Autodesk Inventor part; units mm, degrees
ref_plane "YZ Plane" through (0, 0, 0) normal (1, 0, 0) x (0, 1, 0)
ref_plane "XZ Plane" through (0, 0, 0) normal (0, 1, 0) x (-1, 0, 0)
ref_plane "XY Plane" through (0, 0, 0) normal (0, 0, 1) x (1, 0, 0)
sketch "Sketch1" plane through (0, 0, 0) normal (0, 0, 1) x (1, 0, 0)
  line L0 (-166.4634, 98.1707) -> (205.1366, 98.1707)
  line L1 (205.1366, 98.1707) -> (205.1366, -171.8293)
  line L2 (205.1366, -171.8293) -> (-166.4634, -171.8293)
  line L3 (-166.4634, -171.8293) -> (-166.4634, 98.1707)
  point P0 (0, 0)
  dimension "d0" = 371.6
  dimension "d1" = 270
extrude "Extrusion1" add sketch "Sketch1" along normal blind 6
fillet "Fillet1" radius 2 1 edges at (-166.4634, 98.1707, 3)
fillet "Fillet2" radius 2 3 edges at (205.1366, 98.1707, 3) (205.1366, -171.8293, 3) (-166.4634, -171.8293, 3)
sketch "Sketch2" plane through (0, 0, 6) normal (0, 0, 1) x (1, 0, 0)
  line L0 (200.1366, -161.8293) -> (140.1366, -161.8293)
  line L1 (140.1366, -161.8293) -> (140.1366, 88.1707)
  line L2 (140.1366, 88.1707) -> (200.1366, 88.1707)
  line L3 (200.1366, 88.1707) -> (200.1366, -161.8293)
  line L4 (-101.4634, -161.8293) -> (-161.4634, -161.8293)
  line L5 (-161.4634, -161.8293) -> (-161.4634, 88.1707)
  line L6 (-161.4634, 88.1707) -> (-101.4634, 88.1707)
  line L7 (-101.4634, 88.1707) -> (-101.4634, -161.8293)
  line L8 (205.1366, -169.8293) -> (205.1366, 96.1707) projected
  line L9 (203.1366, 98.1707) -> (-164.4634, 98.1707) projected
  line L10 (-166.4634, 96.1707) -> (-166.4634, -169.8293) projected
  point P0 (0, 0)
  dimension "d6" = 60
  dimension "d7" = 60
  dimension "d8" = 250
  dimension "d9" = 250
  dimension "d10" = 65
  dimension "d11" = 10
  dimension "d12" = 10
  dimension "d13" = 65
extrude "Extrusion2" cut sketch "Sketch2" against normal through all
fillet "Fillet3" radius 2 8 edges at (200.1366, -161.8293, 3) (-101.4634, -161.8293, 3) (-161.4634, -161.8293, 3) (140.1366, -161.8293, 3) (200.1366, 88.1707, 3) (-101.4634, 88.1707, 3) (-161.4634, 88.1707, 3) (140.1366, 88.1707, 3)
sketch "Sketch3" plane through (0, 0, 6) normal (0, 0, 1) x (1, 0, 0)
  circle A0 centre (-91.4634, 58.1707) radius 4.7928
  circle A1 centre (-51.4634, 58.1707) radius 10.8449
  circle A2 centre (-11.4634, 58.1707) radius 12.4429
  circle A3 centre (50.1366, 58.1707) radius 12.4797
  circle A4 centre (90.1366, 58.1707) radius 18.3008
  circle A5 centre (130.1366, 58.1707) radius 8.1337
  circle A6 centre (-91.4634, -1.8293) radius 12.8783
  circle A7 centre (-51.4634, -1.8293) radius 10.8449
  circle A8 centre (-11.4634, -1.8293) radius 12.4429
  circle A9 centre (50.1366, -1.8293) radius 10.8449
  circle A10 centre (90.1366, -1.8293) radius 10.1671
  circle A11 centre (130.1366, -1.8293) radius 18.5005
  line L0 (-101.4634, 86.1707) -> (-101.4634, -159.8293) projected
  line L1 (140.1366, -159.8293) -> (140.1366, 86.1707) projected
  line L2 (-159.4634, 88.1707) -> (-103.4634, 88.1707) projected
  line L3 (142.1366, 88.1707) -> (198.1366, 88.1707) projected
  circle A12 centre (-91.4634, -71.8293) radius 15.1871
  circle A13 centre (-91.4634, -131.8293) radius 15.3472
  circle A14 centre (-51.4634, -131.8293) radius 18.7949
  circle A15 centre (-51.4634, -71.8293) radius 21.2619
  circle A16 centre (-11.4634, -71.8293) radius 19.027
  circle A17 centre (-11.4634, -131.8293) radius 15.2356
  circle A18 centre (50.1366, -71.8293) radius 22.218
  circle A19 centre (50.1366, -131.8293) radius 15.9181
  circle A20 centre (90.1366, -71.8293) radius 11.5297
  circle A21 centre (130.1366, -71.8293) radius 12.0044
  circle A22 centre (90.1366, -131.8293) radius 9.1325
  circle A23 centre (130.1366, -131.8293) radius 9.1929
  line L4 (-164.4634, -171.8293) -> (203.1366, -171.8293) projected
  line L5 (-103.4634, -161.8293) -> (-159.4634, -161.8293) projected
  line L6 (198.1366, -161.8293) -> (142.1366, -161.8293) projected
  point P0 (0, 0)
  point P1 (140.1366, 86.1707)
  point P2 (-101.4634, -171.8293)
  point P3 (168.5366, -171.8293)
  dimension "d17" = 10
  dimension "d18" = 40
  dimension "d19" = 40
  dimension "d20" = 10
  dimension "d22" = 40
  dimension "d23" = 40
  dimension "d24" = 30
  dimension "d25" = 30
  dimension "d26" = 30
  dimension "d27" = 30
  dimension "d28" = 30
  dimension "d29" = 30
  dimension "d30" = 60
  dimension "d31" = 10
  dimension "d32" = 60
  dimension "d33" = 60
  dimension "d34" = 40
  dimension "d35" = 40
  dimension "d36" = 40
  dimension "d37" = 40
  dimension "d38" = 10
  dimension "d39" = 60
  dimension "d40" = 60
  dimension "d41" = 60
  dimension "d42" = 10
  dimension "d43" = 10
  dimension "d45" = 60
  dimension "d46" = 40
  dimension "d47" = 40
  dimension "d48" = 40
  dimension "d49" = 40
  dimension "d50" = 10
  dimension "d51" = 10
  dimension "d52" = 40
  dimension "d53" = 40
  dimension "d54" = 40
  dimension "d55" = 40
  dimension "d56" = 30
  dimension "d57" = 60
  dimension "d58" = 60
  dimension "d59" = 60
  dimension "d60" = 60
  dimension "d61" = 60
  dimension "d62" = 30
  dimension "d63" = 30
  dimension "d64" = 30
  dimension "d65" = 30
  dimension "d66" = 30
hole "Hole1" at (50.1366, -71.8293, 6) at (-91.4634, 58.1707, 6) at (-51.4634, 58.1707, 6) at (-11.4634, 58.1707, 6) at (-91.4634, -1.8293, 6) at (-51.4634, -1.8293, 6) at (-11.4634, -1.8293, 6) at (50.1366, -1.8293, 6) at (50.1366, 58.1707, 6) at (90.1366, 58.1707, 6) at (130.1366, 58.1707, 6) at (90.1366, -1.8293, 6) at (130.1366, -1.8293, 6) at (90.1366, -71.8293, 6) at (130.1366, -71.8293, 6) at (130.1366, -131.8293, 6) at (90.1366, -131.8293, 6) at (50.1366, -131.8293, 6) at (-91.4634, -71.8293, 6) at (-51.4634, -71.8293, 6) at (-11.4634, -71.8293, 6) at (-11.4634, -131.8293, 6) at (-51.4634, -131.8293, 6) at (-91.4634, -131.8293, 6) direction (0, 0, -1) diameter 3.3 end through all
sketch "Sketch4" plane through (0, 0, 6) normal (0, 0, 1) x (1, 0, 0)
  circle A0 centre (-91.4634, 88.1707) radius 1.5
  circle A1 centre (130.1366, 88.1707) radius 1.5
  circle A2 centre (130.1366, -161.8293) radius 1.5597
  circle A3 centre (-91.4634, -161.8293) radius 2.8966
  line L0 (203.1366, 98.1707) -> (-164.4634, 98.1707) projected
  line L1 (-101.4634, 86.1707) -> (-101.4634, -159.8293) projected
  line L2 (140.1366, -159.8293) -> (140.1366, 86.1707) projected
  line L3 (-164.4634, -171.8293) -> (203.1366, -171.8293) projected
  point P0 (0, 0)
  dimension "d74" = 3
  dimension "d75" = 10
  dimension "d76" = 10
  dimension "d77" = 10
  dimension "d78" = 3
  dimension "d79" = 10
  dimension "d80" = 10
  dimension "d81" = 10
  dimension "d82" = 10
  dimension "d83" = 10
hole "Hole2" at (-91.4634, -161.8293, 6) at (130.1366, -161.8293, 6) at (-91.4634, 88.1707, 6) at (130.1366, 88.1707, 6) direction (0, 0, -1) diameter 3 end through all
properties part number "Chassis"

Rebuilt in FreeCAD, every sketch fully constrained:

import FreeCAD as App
import Part
import Sketcher

V = App.Vector


def edges_at(feature, points):
    """Names of the edges that pass closest to the given points."""
    edges = feature.Shape.Edges
    near = lambda p: min(range(len(edges)), key=lambda i: edges[i].distToShape(Part.Vertex(*p))[0])
    return sorted({f"Edge{near(p) + 1}" for p in points})

doc = App.newDocument("Part")
body = doc.addObject("PartDesign::Body", "Body")

# Sketch on XY plane
sketch1 = body.newObject("Sketcher::SketchObject", "Sketch")
sketch1.AttachmentSupport = (doc.getObject("XY_Plane"), [""])
sketch1.MapMode = "FlatFace"
sketch1.addGeometry(Part.LineSegment(V(205, 98, 0), V(-166, 98, 0)), False)
sketch1.addGeometry(Part.LineSegment(V(-166, 98, 0), V(-166, -172, 0)), False)
sketch1.addGeometry(Part.LineSegment(V(-166, -172, 0), V(205, -172, 0)), False)
sketch1.addGeometry(Part.LineSegment(V(205, -172, 0), V(205, 98, 0)), False)
sketch1.addConstraint(Sketcher.Constraint("Coincident", 0, 2, 1, 1))
sketch1.addConstraint(Sketcher.Constraint("Coincident", 1, 2, 2, 1))
sketch1.addConstraint(Sketcher.Constraint("Coincident", 2, 2, 3, 1))
sketch1.addConstraint(Sketcher.Constraint("Coincident", 3, 2, 0, 1))
sketch1.addConstraint(Sketcher.Constraint("Horizontal", 0))
sketch1.addConstraint(Sketcher.Constraint("Vertical", 1))
sketch1.addConstraint(Sketcher.Constraint("Horizontal", 2))
sketch1.addConstraint(Sketcher.Constraint("Vertical", 3))
sketch1.addConstraint(Sketcher.Constraint("DistanceY", 1, 2, 1, 1, 270.0))
sketch1.addConstraint(Sketcher.Constraint("DistanceX", 0, 2, 0, 1, 371.6))
sketch1.addConstraint(Sketcher.Constraint("DistanceX", 0, 2, -1, 1, 166.4634))
sketch1.addConstraint(Sketcher.Constraint("DistanceY", -1, 1, 0, 2, 98.1707))
pad1 = body.newObject("PartDesign::Pad", "Pad")
pad1.Profile = sketch1
pad1.Length = 6
doc.recompute()

fillet = body.newObject("PartDesign::Fillet", "Fillet")
fillet.Base = (pad1, edges_at(pad1, [(-166.463, 98.171, 3)]))
fillet.Radius = 2
doc.recompute()

fillet2 = body.newObject("PartDesign::Fillet", "Fillet001")
fillet2.Base = (fillet, edges_at(fillet, [(205.137, 98.171, 3), (205.137, -171.829, 3), (-166.463, -171.829, 3)]))
fillet2.Radius = 2

# Sketch on XY plane
sketch2 = body.newObject("Sketcher::SketchObject", "Sketch001")
sketch2.AttachmentSupport = (doc.getObject("XY_Plane"), [""])
sketch2.MapMode = "FlatFace"
sketch2.AttachmentOffset = App.Placement(V(0, 0, 6), App.Rotation())
sketch2.addGeometry(Part.LineSegment(V(140, -162, 0), V(200, -162, 0)), False)
sketch2.addGeometry(Part.LineSegment(V(200, -162, 0), V(200, 88, 0)), False)
sketch2.addGeometry(Part.LineSegment(V(200, 88, 0), V(140, 88, 0)), False)
sketch2.addGeometry(Part.LineSegment(V(140, 88, 0), V(140, -162, 0)), False)
sketch2.addGeometry(Part.LineSegment(V(-161, -162, 0), V(-101, -162, 0)), False)
sketch2.addGeometry(Part.LineSegment(V(-101, -162, 0), V(-101, 88, 0)), False)
sketch2.addGeometry(Part.LineSegment(V(-101, 88, 0), V(-161, 88, 0)), False)
sketch2.addGeometry(Part.LineSegment(V(-161, 88, 0), V(-161, -162, 0)), False)
sketch2.addConstraint(Sketcher.Constraint("Coincident", 0, 2, 1, 1))
sketch2.addConstraint(Sketcher.Constraint("Coincident", 1, 2, 2, 1))
sketch2.addConstraint(Sketcher.Constraint("Coincident", 2, 2, 3, 1))
sketch2.addConstraint(Sketcher.Constraint("Coincident", 3, 2, 0, 1))
sketch2.addConstraint(Sketcher.Constraint("Coincident", 4, 2, 5, 1))
sketch2.addConstraint(Sketcher.Constraint("Coincident", 5, 2, 6, 1))
sketch2.addConstraint(Sketcher.Constraint("Coincident", 6, 2, 7, 1))
sketch2.addConstraint(Sketcher.Constraint("Coincident", 7, 2, 4, 1))
sketch2.addConstraint(Sketcher.Constraint("Horizontal", 0))
sketch2.addConstraint(Sketcher.Constraint("Vertical", 1))
sketch2.addConstraint(Sketcher.Constraint("Horizontal", 2))
sketch2.addConstraint(Sketcher.Constraint("Vertical", 3))
sketch2.addConstraint(Sketcher.Constraint("Horizontal", 4))
sketch2.addConstraint(Sketcher.Constraint("Vertical", 5))
sketch2.addConstraint(Sketcher.Constraint("Horizontal", 6))
sketch2.addConstraint(Sketcher.Constraint("Vertical", 7))
sketch2.addConstraint(Sketcher.Constraint("Horizontal", 3, 2, 4, 2))
sketch2.addConstraint(Sketcher.Constraint("Horizontal", 2, 2, 5, 2))
sketch2.addConstraint(Sketcher.Constraint("Equal", 2, 4))
sketch2.addConstraint(Sketcher.Constraint("DistanceX", 0, 1, 0, 2, 60.0))
sketch2.addConstraint(Sketcher.Constraint("DistanceY", 1, 1, 1, 2, 250.0))
sketch2.addConstraint(Sketcher.Constraint("DistanceX", 4, 2, 3, 2, 241.6))
sketch2.addConstraint(Sketcher.Constraint("DistanceX", -1, 1, 0, 2, 200.1366))
sketch2.addConstraint(Sketcher.Constraint("DistanceY", 0, 2, -1, 1, 161.8293))
pocket1 = body.newObject("PartDesign::Pocket", "Pocket")
pocket1.Profile = sketch2
pocket1.Type = "ThroughAll"
doc.recompute()

fillet3 = body.newObject("PartDesign::Fillet", "Fillet002")
fillet3.Base = (pocket1, edges_at(pocket1, [
    (200.137, -161.829, 3),
    (-101.463, -161.829, 3),
    (-161.463, -161.829, 3),
    (140.137, -161.829, 3),
    (200.137, 88.171, 3),
    (-101.463, 88.171, 3),
    (-161.463, 88.171, 3),
    (140.137, 88.171, 3),
]))
fillet3.Radius = 2

# Sketch on XY plane
sketch3 = body.newObject("Sketcher::SketchObject", "Sketch002")
sketch3.AttachmentSupport = (doc.getObject("XY_Plane"), [""])
sketch3.MapMode = "FlatFace"
sketch3.AttachmentOffset = App.Placement(V(0, 0, 6), App.Rotation())
sketch3.addGeometry(Part.Circle(V(50.1, -71.8, 0), V(0, 0, 1), 1.6), False)
sketch3.addGeometry(Part.Circle(V(-91.5, 58.2, 0), V(0, 0, 1), 1.6), False)
sketch3.addGeometry(Part.Circle(V(-51.5, 58.2, 0), V(0, 0, 1), 1.6), False)
sketch3.addGeometry(Part.Circle(V(-11.5, 58.2, 0), V(0, 0, 1), 1.6), False)
sketch3.addGeometry(Part.Circle(V(-91.5, -1.8, 0), V(0, 0, 1), 1.6), False)
sketch3.addGeometry(Part.Circle(V(-51.5, -1.8, 0), V(0, 0, 1), 1.6), False)
sketch3.addGeometry(Part.Circle(V(-11.5, -1.8, 0), V(0, 0, 1), 1.6), False)
sketch3.addGeometry(Part.Circle(V(50.1, -1.8, 0), V(0, 0, 1), 1.6), False)
sketch3.addGeometry(Part.Circle(V(50.1, 58.2, 0), V(0, 0, 1), 1.6), False)
sketch3.addGeometry(Part.Circle(V(90.1, 58.2, 0), V(0, 0, 1), 1.6), False)
sketch3.addGeometry(Part.Circle(V(130.1, 58.2, 0), V(0, 0, 1), 1.6), False)
sketch3.addGeometry(Part.Circle(V(90.1, -1.8, 0), V(0, 0, 1), 1.6), False)
sketch3.addGeometry(Part.Circle(V(130.1, -1.8, 0), V(0, 0, 1), 1.6), False)
sketch3.addGeometry(Part.Circle(V(90.1, -71.8, 0), V(0, 0, 1), 1.6), False)
sketch3.addGeometry(Part.Circle(V(130.1, -71.8, 0), V(0, 0, 1), 1.6), False)
sketch3.addGeometry(Part.Circle(V(130.1, -131.8, 0), V(0, 0, 1), 1.6), False)
sketch3.addGeometry(Part.Circle(V(90.1, -131.8, 0), V(0, 0, 1), 1.6), False)
sketch3.addGeometry(Part.Circle(V(50.1, -131.8, 0), V(0, 0, 1), 1.6), False)
sketch3.addGeometry(Part.Circle(V(-91.5, -71.8, 0), V(0, 0, 1), 1.6), False)
sketch3.addGeometry(Part.Circle(V(-51.5, -71.8, 0), V(0, 0, 1), 1.6), False)
sketch3.addGeometry(Part.Circle(V(-11.5, -71.8, 0), V(0, 0, 1), 1.6), False)
sketch3.addGeometry(Part.Circle(V(-11.5, -131.8, 0), V(0, 0, 1), 1.6), False)
sketch3.addGeometry(Part.Circle(V(-51.5, -131.8, 0), V(0, 0, 1), 1.6), False)
sketch3.addGeometry(Part.Circle(V(-91.5, -131.8, 0), V(0, 0, 1), 1.6), False)
sketch3.addConstraint(Sketcher.Constraint("Equal", 0, 1))
sketch3.addConstraint(Sketcher.Constraint("Equal", 1, 2))
sketch3.addConstraint(Sketcher.Constraint("Equal", 2, 3))
sketch3.addConstraint(Sketcher.Constraint("Equal", 3, 4))
sketch3.addConstraint(Sketcher.Constraint("Equal", 4, 5))
sketch3.addConstraint(Sketcher.Constraint("Equal", 5, 6))
sketch3.addConstraint(Sketcher.Constraint("Equal", 6, 7))
sketch3.addConstraint(Sketcher.Constraint("Equal", 7, 8))
sketch3.addConstraint(Sketcher.Constraint("Equal", 8, 9))
sketch3.addConstraint(Sketcher.Constraint("Equal", 9, 10))
sketch3.addConstraint(Sketcher.Constraint("Equal", 10, 11))
sketch3.addConstraint(Sketcher.Constraint("Equal", 11, 12))
sketch3.addConstraint(Sketcher.Constraint("Equal", 12, 13))
sketch3.addConstraint(Sketcher.Constraint("Equal", 13, 14))
sketch3.addConstraint(Sketcher.Constraint("Equal", 14, 15))
sketch3.addConstraint(Sketcher.Constraint("Equal", 15, 16))
sketch3.addConstraint(Sketcher.Constraint("Equal", 16, 17))
sketch3.addConstraint(Sketcher.Constraint("Equal", 17, 18))
sketch3.addConstraint(Sketcher.Constraint("Equal", 18, 19))
sketch3.addConstraint(Sketcher.Constraint("Equal", 19, 20))
sketch3.addConstraint(Sketcher.Constraint("Equal", 20, 21))
sketch3.addConstraint(Sketcher.Constraint("Equal", 21, 22))
sketch3.addConstraint(Sketcher.Constraint("Equal", 22, 23))
sketch3.addConstraint(Sketcher.Constraint("Horizontal", 1, 3, 2, 3))
sketch3.addConstraint(Sketcher.Constraint("Horizontal", 2, 3, 3, 3))
sketch3.addConstraint(Sketcher.Constraint("Horizontal", 4, 3, 5, 3))
sketch3.addConstraint(Sketcher.Constraint("Horizontal", 5, 3, 6, 3))
sketch3.addConstraint(Sketcher.Constraint("Horizontal", 6, 3, 7, 3))
sketch3.addConstraint(Sketcher.Constraint("Horizontal", 3, 3, 8, 3))
sketch3.addConstraint(Sketcher.Constraint("Horizontal", 8, 3, 9, 3))
sketch3.addConstraint(Sketcher.Constraint("Horizontal", 9, 3, 10, 3))
sketch3.addConstraint(Sketcher.Constraint("Horizontal", 7, 3, 11, 3))
sketch3.addConstraint(Sketcher.Constraint("Horizontal", 11, 3, 12, 3))
sketch3.addConstraint(Sketcher.Constraint("Horizontal", 0, 3, 13, 3))
sketch3.addConstraint(Sketcher.Constraint("Horizontal", 13, 3, 14, 3))
sketch3.addConstraint(Sketcher.Constraint("Horizontal", 15, 3, 16, 3))
sketch3.addConstraint(Sketcher.Constraint("Horizontal", 16, 3, 17, 3))
sketch3.addConstraint(Sketcher.Constraint("Horizontal", 14, 3, 18, 3))
sketch3.addConstraint(Sketcher.Constraint("Horizontal", 18, 3, 19, 3))
sketch3.addConstraint(Sketcher.Constraint("Horizontal", 19, 3, 20, 3))
sketch3.addConstraint(Sketcher.Constraint("Horizontal", 17, 3, 21, 3))
sketch3.addConstraint(Sketcher.Constraint("Horizontal", 21, 3, 22, 3))
sketch3.addConstraint(Sketcher.Constraint("Horizontal", 22, 3, 23, 3))
sketch3.addConstraint(Sketcher.Constraint("Vertical", 1, 3, 4, 3))
sketch3.addConstraint(Sketcher.Constraint("Vertical", 2, 3, 5, 3))
sketch3.addConstraint(Sketcher.Constraint("Vertical", 3, 3, 6, 3))
sketch3.addConstraint(Sketcher.Constraint("Vertical", 0, 3, 7, 3))
sketch3.addConstraint(Sketcher.Constraint("Vertical", 7, 3, 8, 3))
sketch3.addConstraint(Sketcher.Constraint("Vertical", 9, 3, 11, 3))
sketch3.addConstraint(Sketcher.Constraint("Vertical", 10, 3, 12, 3))
sketch3.addConstraint(Sketcher.Constraint("Vertical", 11, 3, 13, 3))
sketch3.addConstraint(Sketcher.Constraint("Vertical", 12, 3, 14, 3))
sketch3.addConstraint(Sketcher.Constraint("Vertical", 14, 3, 15, 3))
sketch3.addConstraint(Sketcher.Constraint("Vertical", 13, 3, 16, 3))
sketch3.addConstraint(Sketcher.Constraint("Vertical", 8, 3, 17, 3))
sketch3.addConstraint(Sketcher.Constraint("Vertical", 4, 3, 18, 3))
sketch3.addConstraint(Sketcher.Constraint("Vertical", 5, 3, 19, 3))
sketch3.addConstraint(Sketcher.Constraint("Vertical", 6, 3, 20, 3))
sketch3.addConstraint(Sketcher.Constraint("Vertical", 20, 3, 21, 3))
sketch3.addConstraint(Sketcher.Constraint("Vertical", 19, 3, 22, 3))
sketch3.addConstraint(Sketcher.Constraint("Vertical", 18, 3, 23, 3))
sketch3.addConstraint(Sketcher.Constraint("Diameter", 0, 3.3))
sketch3.addConstraint(Sketcher.Constraint("DistanceY", 0, 3, 1, 3, 130.0))
sketch3.addConstraint(Sketcher.Constraint("DistanceX", 1, 3, 2, 3, 40.0))
sketch3.addConstraint(Sketcher.Constraint("DistanceX", 2, 3, 3, 3, 40.0))
sketch3.addConstraint(Sketcher.Constraint("DistanceY", 4, 3, 1, 3, 60.0))
sketch3.addConstraint(Sketcher.Constraint("DistanceX", 8, 3, 9, 3, 40.0))
sketch3.addConstraint(Sketcher.Constraint("DistanceX", 9, 3, 10, 3, 40.0))
sketch3.addConstraint(Sketcher.Constraint("DistanceY", 15, 3, 14, 3, 60.0))
sketch3.addConstraint(Sketcher.Constraint("DistanceX", 1, 3, 0, 3, 141.6))
sketch3.addConstraint(Sketcher.Constraint("DistanceX", -1, 1, 0, 3, 50.1366))
sketch3.addConstraint(Sketcher.Constraint("DistanceY", 0, 3, -1, 1, 71.8293))
doc.recompute()
hole = body.newObject("PartDesign::Hole", "Hole")
hole.Profile = sketch3
hole.ThreadType = "None"
hole.Diameter = 3.3
hole.DepthType = "ThroughAll"

# Sketch on XY plane
sketch4 = body.newObject("Sketcher::SketchObject", "Sketch003")
sketch4.AttachmentSupport = (doc.getObject("XY_Plane"), [""])
sketch4.MapMode = "FlatFace"
sketch4.AttachmentOffset = App.Placement(V(0, 0, 6), App.Rotation())
sketch4.addGeometry(Part.Circle(V(-91.5, -161.8, 0), V(0, 0, 1), 1.5), False)
sketch4.addGeometry(Part.Circle(V(130.1, -161.8, 0), V(0, 0, 1), 1.5), False)
sketch4.addGeometry(Part.Circle(V(-91.5, 88.2, 0), V(0, 0, 1), 1.5), False)
sketch4.addGeometry(Part.Circle(V(130.1, 88.2, 0), V(0, 0, 1), 1.5), False)
sketch4.addConstraint(Sketcher.Constraint("Equal", 0, 1))
sketch4.addConstraint(Sketcher.Constraint("Equal", 1, 2))
sketch4.addConstraint(Sketcher.Constraint("Equal", 2, 3))
sketch4.addConstraint(Sketcher.Constraint("Horizontal", 0, 3, 1, 3))
sketch4.addConstraint(Sketcher.Constraint("Horizontal", 2, 3, 3, 3))
sketch4.addConstraint(Sketcher.Constraint("Vertical", 0, 3, 2, 3))
sketch4.addConstraint(Sketcher.Constraint("Vertical", 1, 3, 3, 3))
sketch4.addConstraint(Sketcher.Constraint("Diameter", 0, 3.0))
sketch4.addConstraint(Sketcher.Constraint("DistanceY", 0, 3, 2, 3, 250.0))
sketch4.addConstraint(Sketcher.Constraint("DistanceX", 0, 3, 1, 3, 221.6))
sketch4.addConstraint(Sketcher.Constraint("DistanceX", 0, 3, -1, 1, 91.4634))
sketch4.addConstraint(Sketcher.Constraint("DistanceY", 0, 3, -1, 1, 161.8293))
doc.recompute()
hole2 = body.newObject("PartDesign::Hole", "Hole001")
hole2.Profile = sketch4
hole2.ThreadType = "None"
hole2.Diameter = 3
hole2.DepthType = "ThroughAll"

doc.recompute()
